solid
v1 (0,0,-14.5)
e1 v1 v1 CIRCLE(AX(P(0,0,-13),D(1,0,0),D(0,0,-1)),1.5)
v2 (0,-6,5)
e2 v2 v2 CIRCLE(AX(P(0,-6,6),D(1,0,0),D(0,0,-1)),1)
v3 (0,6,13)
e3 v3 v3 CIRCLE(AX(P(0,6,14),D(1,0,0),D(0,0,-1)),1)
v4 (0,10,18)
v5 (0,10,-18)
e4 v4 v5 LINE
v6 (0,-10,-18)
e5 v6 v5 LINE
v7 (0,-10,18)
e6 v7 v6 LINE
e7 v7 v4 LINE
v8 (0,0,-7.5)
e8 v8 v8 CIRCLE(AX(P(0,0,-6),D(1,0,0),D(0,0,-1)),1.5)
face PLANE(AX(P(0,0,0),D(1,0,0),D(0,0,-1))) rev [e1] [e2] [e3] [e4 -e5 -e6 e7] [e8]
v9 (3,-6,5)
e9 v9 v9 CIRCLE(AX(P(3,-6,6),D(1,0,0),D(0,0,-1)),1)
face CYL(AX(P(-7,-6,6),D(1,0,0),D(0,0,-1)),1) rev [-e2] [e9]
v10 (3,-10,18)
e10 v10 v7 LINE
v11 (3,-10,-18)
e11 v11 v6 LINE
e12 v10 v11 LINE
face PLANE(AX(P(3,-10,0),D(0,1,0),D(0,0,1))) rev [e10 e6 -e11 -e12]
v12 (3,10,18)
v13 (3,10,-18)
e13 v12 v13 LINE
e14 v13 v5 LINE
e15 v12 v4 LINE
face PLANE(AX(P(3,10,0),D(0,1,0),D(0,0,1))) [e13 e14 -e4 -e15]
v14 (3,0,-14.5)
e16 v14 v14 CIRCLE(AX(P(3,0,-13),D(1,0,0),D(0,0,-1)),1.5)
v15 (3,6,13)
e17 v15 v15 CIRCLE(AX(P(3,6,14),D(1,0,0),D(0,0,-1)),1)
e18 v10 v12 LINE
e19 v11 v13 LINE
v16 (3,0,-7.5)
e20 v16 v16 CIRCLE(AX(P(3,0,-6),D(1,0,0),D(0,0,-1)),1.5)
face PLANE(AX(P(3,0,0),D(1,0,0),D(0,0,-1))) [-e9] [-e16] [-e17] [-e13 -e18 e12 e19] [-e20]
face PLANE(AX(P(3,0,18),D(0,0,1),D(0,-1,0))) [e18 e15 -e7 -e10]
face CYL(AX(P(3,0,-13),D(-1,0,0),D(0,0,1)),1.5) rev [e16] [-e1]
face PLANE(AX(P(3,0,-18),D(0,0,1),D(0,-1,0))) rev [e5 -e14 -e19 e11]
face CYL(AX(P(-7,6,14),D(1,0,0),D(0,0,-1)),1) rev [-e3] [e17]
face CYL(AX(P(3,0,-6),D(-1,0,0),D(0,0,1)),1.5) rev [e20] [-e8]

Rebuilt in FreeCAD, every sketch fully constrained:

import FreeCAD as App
import Part
import Sketcher
Q = App.Units.Quantity

doc = App.newDocument("Part")
body = doc.addObject("PartDesign::Body", "Body")

# Sketch on YZ plane
sketch1 = doc.addObject("Sketcher::SketchObject", "Sketch")
body.addObject(sketch1)
sketch1.AttachmentSupport = (doc.YZ_Plane, [""])
sketch1.MapMode = "FlatFace"
sketch1.addGeometry(Part.LineSegment(App.Vector(10, 18, 0), App.Vector(-10, 18, 0)), False)
sketch1.addGeometry(Part.LineSegment(App.Vector(-10, 18, 0), App.Vector(-10, -18, 0)), False)
sketch1.addGeometry(Part.LineSegment(App.Vector(-10, -18, 0), App.Vector(10, -18, 0)), False)
sketch1.addGeometry(Part.LineSegment(App.Vector(10, -18, 0), App.Vector(10, 18, 0)), False)
sketch1.addGeometry(Part.Circle(App.Vector(0, -6, 0), App.Vector(0, 0, 1), 1.5), False)
sketch1.addGeometry(Part.Circle(App.Vector(0, -13, 0), App.Vector(0, 0, 1), 1.5), False)
sketch1.addConstraint(Sketcher.Constraint("Coincident", 0, 2, 1, 1))
sketch1.addConstraint(Sketcher.Constraint("Coincident", 1, 2, 2, 1))
sketch1.addConstraint(Sketcher.Constraint("Coincident", 2, 2, 3, 1))
sketch1.addConstraint(Sketcher.Constraint("Coincident", 3, 2, 0, 1))
sketch1.addConstraint(Sketcher.Constraint("Horizontal", 0))
sketch1.addConstraint(Sketcher.Constraint("Vertical", 1))
sketch1.addConstraint(Sketcher.Constraint("Horizontal", 2))
sketch1.addConstraint(Sketcher.Constraint("Vertical", 3))
sketch1.addConstraint(Sketcher.Constraint("Equal", 4, 5))
sketch1.addConstraint(Sketcher.Constraint("Symmetric", 0, 2, 2, 2, -1, 1))
sketch1.addConstraint(Sketcher.Constraint("PointOnObject", 4, 3, -2))
sketch1.addConstraint(Sketcher.Constraint("PointOnObject", 5, 3, -2))
sketch1.addConstraint(Sketcher.Constraint("Diameter", 4, Q("3 mm")))
sketch1.addConstraint(Sketcher.Constraint("DistanceX", 0, 2, 0, 1, Q("20 mm")))
sketch1.addConstraint(Sketcher.Constraint("DistanceY", 1, 2, 1, 1, Q("36 mm")))
sketch1.addConstraint(Sketcher.Constraint("DistanceY", 4, 3, -1, 1, Q("6 mm")))
sketch1.addConstraint(Sketcher.Constraint("DistanceY", 5, 3, -1, 1, Q("13 mm")))
pad1 = doc.addObject("PartDesign::Pad", "Pad")
body.addObject(pad1)
pad1.Profile = sketch1
pad1.Length = 3

# Sketch on YZ plane
sketch2 = doc.addObject("Sketcher::SketchObject", "Sketch001")
body.addObject(sketch2)
sketch2.AttachmentSupport = (doc.YZ_Plane, [""])
sketch2.MapMode = "FlatFace"
sketch2.AttachmentOffset = App.Placement(App.Vector(0, 0, 3), App.Rotation())
sketch2.addGeometry(Part.Circle(App.Vector(6, 14, 0), App.Vector(0, 0, 1), 1), False)
sketch2.addGeometry(Part.Circle(App.Vector(-6, 6, 0), App.Vector(0, 0, 1), 1), False)
sketch2.addConstraint(Sketcher.Constraint("Equal", 0, 1))
sketch2.addConstraint(Sketcher.Constraint("Diameter", 0, Q("2 mm")))
sketch2.addConstraint(Sketcher.Constraint("DistanceX", -1, 1, 0, 3, Q("6 mm")))
sketch2.addConstraint(Sketcher.Constraint("DistanceY", -1, 1, 0, 3, Q("14 mm")))
sketch2.addConstraint(Sketcher.Constraint("DistanceX", 1, 3, -1, 1, Q("6 mm")))
sketch2.addConstraint(Sketcher.Constraint("DistanceY", -1, 1, 1, 3, Q("6 mm")))
pocket1 = doc.addObject("PartDesign::Pocket", "Pocket")
body.addObject(pocket1)
pocket1.Profile = sketch2
pocket1.Length = 10

doc.recompute()
